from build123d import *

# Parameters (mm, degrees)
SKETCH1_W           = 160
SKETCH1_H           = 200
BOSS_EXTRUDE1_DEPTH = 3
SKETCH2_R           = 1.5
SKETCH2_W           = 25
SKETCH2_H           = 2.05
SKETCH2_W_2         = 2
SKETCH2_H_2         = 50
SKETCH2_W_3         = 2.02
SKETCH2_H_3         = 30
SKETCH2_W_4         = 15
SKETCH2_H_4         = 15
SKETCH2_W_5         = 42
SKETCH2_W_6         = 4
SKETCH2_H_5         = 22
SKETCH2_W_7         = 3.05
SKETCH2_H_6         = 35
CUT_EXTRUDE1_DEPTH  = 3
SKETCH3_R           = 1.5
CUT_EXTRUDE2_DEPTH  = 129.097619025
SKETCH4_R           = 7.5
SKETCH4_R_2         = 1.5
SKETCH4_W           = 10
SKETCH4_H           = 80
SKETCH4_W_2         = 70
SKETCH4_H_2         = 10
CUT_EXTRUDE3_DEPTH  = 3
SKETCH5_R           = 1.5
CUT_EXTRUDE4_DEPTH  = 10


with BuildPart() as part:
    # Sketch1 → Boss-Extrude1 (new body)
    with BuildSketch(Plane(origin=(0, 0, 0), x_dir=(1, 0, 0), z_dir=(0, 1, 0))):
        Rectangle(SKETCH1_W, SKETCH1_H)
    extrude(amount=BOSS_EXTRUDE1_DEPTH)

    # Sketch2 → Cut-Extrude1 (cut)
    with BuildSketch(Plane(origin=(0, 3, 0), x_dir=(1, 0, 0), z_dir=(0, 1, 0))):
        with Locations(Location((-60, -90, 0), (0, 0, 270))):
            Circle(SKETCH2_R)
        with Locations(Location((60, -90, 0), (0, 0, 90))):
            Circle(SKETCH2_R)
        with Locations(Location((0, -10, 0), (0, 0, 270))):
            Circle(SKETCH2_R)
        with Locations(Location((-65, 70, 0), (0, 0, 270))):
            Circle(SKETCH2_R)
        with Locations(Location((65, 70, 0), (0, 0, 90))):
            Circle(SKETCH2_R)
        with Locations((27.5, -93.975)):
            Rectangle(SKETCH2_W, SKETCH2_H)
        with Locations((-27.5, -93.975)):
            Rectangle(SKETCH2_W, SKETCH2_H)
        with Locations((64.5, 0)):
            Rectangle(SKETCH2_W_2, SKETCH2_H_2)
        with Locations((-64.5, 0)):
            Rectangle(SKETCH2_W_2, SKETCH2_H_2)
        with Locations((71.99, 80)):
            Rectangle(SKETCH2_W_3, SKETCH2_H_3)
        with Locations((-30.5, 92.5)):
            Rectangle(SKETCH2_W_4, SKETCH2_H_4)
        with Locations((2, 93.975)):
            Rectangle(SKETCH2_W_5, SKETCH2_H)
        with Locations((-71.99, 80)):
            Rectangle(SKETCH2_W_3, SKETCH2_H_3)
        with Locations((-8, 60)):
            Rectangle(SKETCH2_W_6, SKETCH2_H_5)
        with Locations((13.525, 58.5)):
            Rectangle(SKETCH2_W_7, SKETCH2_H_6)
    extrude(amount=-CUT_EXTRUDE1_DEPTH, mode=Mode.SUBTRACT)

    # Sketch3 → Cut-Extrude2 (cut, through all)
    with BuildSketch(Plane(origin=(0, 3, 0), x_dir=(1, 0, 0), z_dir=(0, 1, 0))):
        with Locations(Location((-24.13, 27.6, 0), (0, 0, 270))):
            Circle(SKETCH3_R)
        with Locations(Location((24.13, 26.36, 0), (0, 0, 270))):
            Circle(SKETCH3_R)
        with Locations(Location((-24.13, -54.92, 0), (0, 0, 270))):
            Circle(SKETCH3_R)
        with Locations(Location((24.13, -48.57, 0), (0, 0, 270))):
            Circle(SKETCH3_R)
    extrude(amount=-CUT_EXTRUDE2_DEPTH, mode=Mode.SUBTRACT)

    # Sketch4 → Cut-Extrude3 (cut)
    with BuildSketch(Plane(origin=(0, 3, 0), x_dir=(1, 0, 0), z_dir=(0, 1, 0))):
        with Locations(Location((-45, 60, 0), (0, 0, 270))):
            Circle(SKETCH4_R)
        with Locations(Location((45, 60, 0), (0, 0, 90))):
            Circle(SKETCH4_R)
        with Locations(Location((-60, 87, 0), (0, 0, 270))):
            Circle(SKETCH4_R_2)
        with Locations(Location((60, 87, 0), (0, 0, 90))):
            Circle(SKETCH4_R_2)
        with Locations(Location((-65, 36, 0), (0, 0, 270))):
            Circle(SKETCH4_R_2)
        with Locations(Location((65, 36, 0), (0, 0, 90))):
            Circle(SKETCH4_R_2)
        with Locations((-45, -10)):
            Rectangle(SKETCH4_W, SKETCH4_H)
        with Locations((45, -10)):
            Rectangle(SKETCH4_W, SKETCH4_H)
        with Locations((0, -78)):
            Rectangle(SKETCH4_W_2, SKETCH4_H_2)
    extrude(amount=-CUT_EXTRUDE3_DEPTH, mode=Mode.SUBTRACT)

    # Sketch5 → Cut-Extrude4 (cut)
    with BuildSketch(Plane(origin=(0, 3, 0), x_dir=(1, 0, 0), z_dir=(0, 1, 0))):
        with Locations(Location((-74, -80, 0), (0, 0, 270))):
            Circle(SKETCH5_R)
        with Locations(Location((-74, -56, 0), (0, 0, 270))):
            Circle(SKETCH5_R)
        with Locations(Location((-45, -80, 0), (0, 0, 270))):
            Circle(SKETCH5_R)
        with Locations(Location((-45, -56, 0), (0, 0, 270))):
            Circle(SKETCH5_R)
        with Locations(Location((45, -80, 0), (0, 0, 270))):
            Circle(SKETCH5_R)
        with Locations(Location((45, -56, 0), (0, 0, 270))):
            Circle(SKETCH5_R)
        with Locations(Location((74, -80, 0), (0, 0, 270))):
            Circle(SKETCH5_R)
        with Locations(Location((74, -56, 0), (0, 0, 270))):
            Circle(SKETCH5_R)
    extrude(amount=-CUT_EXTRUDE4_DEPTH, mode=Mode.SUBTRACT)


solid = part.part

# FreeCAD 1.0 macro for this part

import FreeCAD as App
import Part
import Sketcher
Q = App.Units.Quantity

doc = App.newDocument("Part")
body = doc.addObject("PartDesign::Body", "Body")

sketch1 = body.newObject("Sketcher::SketchObject", "Sketch")
sketch1.AttachmentSupport = (doc.getObject("XZ_Plane"), [""])
sketch1.MapMode = "FlatFace"
sketch1.addGeometry(Part.LineSegment(App.Vector(-80, -100, 0), App.Vector(-80, 100, 0)), False)
sketch1.addGeometry(Part.LineSegment(App.Vector(-80, 100, 0), App.Vector(80, 100, 0)), False)
sketch1.addGeometry(Part.LineSegment(App.Vector(80, 100, 0), App.Vector(80, -100, 0)), False)
sketch1.addGeometry(Part.LineSegment(App.Vector(80, -100, 0), App.Vector(-80, -100, 0)), False)
sketch1.addConstraint(Sketcher.Constraint("Coincident", 0, 2, 1, 1))
sketch1.addConstraint(Sketcher.Constraint("Coincident", 1, 2, 2, 1))
sketch1.addConstraint(Sketcher.Constraint("Coincident", 2, 2, 3, 1))
sketch1.addConstraint(Sketcher.Constraint("Coincident", 3, 2, 0, 1))
sketch1.addConstraint(Sketcher.Constraint("Vertical", 0))
sketch1.addConstraint(Sketcher.Constraint("Horizontal", 1))
sketch1.addConstraint(Sketcher.Constraint("Vertical", 2))
sketch1.addConstraint(Sketcher.Constraint("Horizontal", 3))
sketch1.addConstraint(Sketcher.Constraint("Symmetric", 0, 2, 2, 2, -1, 1))
sketch1.addConstraint(Sketcher.Constraint("DistanceX", 1, 1, 1, 2, Q("160 mm")))
sketch1.addConstraint(Sketcher.Constraint("DistanceY", 0, 1, 0, 2, Q("200 mm")))
pad1 = body.newObject("PartDesign::Pad", "Pad")
pad1.Profile = sketch1
pad1.Length = 3
pad1.Reversed = True

sketch2 = body.newObject("Sketcher::SketchObject", "Sketch001")
sketch2.AttachmentSupport = (doc.getObject("XZ_Plane"), [""])
sketch2.MapMode = "FlatFace"
sketch2.AttachmentOffset = App.Placement(App.Vector(0, 0, -3), App.Rotation())
sketch2.addGeometry(Part.Circle(App.Vector(-60, 90, 0), App.Vector(0, 0, 1), 1.5), False)
sketch2.addGeometry(Part.Circle(App.Vector(60, 90, 0), App.Vector(0, 0, 1), 1.5), False)
sketch2.addGeometry(Part.Circle(App.Vector(0, 10, 0), App.Vector(0, 0, 1), 1.5), False)
sketch2.addGeometry(Part.Circle(App.Vector(-65, -70, 0), App.Vector(0, 0, 1), 1.5), False)
sketch2.addGeometry(Part.Circle(App.Vector(65, -70, 0), App.Vector(0, 0, 1), 1.5), False)
sketch2.addGeometry(Part.LineSegment(App.Vector(15, 93, 0), App.Vector(15, 95, 0)), False)
sketch2.addGeometry(Part.LineSegment(App.Vector(15, 95, 0), App.Vector(40, 95, 0)), False)
sketch2.addGeometry(Part.LineSegment(App.Vector(40, 95, 0), App.Vector(40, 93, 0)), False)
sketch2.addGeometry(Part.LineSegment(App.Vector(40, 93, 0), App.Vector(15, 93, 0)), False)
sketch2.addGeometry(Part.LineSegment(App.Vector(-40, 93, 0), App.Vector(-40, 95, 0)), False)
sketch2.addGeometry(Part.LineSegment(App.Vector(-40, 95, 0), App.Vector(-15, 95, 0)), False)
sketch2.addGeometry(Part.LineSegment(App.Vector(-15, 95, 0), App.Vector(-15, 93, 0)), False)
sketch2.addGeometry(Part.LineSegment(App.Vector(-15, 93, 0), App.Vector(-40, 93, 0)), False)
sketch2.addGeometry(Part.LineSegment(App.Vector(63.5, -25, 0), App.Vector(63.5, 25, 0)), False)
sketch2.addGeometry(Part.LineSegment(App.Vector(63.5, 25, 0), App.Vector(65.5, 25, 0)), False)
sketch2.addGeometry(Part.LineSegment(App.Vector(65.5, 25, 0), App.Vector(65.5, -25, 0)), False)
sketch2.addGeometry(Part.LineSegment(App.Vector(65.5, -25, 0), App.Vector(63.5, -25, 0)), False)
sketch2.addGeometry(Part.LineSegment(App.Vector(-65.5, -25, 0), App.Vector(-65.5, 25, 0)), False)
sketch2.addGeometry(Part.LineSegment(App.Vector(-65.5, 25, 0), App.Vector(-63.5, 25, 0)), False)
sketch2.addGeometry(Part.LineSegment(App.Vector(-63.5, 25, 0), App.Vector(-63.5, -25, 0)), False)
sketch2.addGeometry(Part.LineSegment(App.Vector(-63.5, -25, 0), App.Vector(-65.5, -25, 0)), False)
sketch2.addGeometry(Part.LineSegment(App.Vector(71, -95, 0), App.Vector(71, -65, 0)), False)
sketch2.addGeometry(Part.LineSegment(App.Vector(71, -65, 0), App.Vector(73, -65, 0)), False)
sketch2.addGeometry(Part.LineSegment(App.Vector(73, -65, 0), App.Vector(73, -95, 0)), False)
sketch2.addGeometry(Part.LineSegment(App.Vector(73, -95, 0), App.Vector(71, -95, 0)), False)
sketch2.addGeometry(Part.LineSegment(App.Vector(-38, -100, 0), App.Vector(-38, -85, 0)), False)
sketch2.addGeometry(Part.LineSegment(App.Vector(-38, -85, 0), App.Vector(-23, -85, 0)), False)
sketch2.addGeometry(Part.LineSegment(App.Vector(-23, -85, 0), App.Vector(-23, -100, 0)), False)
sketch2.addGeometry(Part.LineSegment(App.Vector(-23, -100, 0), App.Vector(-38, -100, 0)), False)
sketch2.addGeometry(Part.LineSegment(App.Vector(-19, -95, 0), App.Vector(-19, -93, 0)), False)
sketch2.addGeometry(Part.LineSegment(App.Vector(-19, -93, 0), App.Vector(23, -93, 0)), False)
sketch2.addGeometry(Part.LineSegment(App.Vector(23, -93, 0), App.Vector(23, -95, 0)), False)
sketch2.addGeometry(Part.LineSegment(App.Vector(23, -95, 0), App.Vector(-19, -95, 0)), False)
sketch2.addGeometry(Part.LineSegment(App.Vector(-73, -95, 0), App.Vector(-73, -65, 0)), False)
sketch2.addGeometry(Part.LineSegment(App.Vector(-73, -65, 0), App.Vector(-71, -65, 0)), False)
sketch2.addGeometry(Part.LineSegment(App.Vector(-71, -65, 0), App.Vector(-71, -95, 0)), False)
sketch2.addGeometry(Part.LineSegment(App.Vector(-71, -95, 0), App.Vector(-73, -95, 0)), False)
sketch2.addGeometry(Part.LineSegment(App.Vector(-10, -71, 0), App.Vector(-10, -49, 0)), False)
sketch2.addGeometry(Part.LineSegment(App.Vector(-10, -49, 0), App.Vector(-6, -49, 0)), False)
sketch2.addGeometry(Part.LineSegment(App.Vector(-6, -49, 0), App.Vector(-6, -71, 0)), False)
sketch2.addGeometry(Part.LineSegment(App.Vector(-6, -71, 0), App.Vector(-10, -71, 0)), False)
sketch2.addGeometry(Part.LineSegment(App.Vector(12, -76, 0), App.Vector(12, -41, 0)), False)
sketch2.addGeometry(Part.LineSegment(App.Vector(12, -41, 0), App.Vector(15.1, -41, 0)), False)
sketch2.addGeometry(Part.LineSegment(App.Vector(15.1, -41, 0), App.Vector(15.1, -76, 0)), False)
sketch2.addGeometry(Part.LineSegment(App.Vector(15.1, -76, 0), App.Vector(12, -76, 0)), False)
sketch2.addConstraint(Sketcher.Constraint("Coincident", 5, 2, 6, 1))
sketch2.addConstraint(Sketcher.Constraint("Coincident", 6, 2, 7, 1))
sketch2.addConstraint(Sketcher.Constraint("Coincident", 7, 2, 8, 1))
sketch2.addConstraint(Sketcher.Constraint("Coincident", 8, 2, 5, 1))
sketch2.addConstraint(Sketcher.Constraint("Coincident", 9, 2, 10, 1))
sketch2.addConstraint(Sketcher.Constraint("Coincident", 10, 2, 11, 1))
sketch2.addConstraint(Sketcher.Constraint("Coincident", 11, 2, 12, 1))
sketch2.addConstraint(Sketcher.Constraint("Coincident", 12, 2, 9, 1))
sketch2.addConstraint(Sketcher.Constraint("Coincident", 13, 2, 14, 1))
sketch2.addConstraint(Sketcher.Constraint("Coincident", 14, 2, 15, 1))
sketch2.addConstraint(Sketcher.Constraint("Coincident", 15, 2, 16, 1))
sketch2.addConstraint(Sketcher.Constraint("Coincident", 16, 2, 13, 1))
sketch2.addConstraint(Sketcher.Constraint("Coincident", 17, 2, 18, 1))
sketch2.addConstraint(Sketcher.Constraint("Coincident", 18, 2, 19, 1))
sketch2.addConstraint(Sketcher.Constraint("Coincident", 19, 2, 20, 1))
sketch2.addConstraint(Sketcher.Constraint("Coincident", 20, 2, 17, 1))
sketch2.addConstraint(Sketcher.Constraint("Coincident", 21, 2, 22, 1))
sketch2.addConstraint(Sketcher.Constraint("Coincident", 22, 2, 23, 1))
sketch2.addConstraint(Sketcher.Constraint("Coincident", 23, 2, 24, 1))
sketch2.addConstraint(Sketcher.Constraint("Coincident", 24, 2, 21, 1))
sketch2.addConstraint(Sketcher.Constraint("Coincident", 25, 2, 26, 1))
sketch2.addConstraint(Sketcher.Constraint("Coincident", 26, 2, 27, 1))
sketch2.addConstraint(Sketcher.Constraint("Coincident", 27, 2, 28, 1))
sketch2.addConstraint(Sketcher.Constraint("Coincident", 28, 2, 25, 1))
sketch2.addConstraint(Sketcher.Constraint("Coincident", 29, 2, 30, 1))
sketch2.addConstraint(Sketcher.Constraint("Coincident", 30, 2, 31, 1))
sketch2.addConstraint(Sketcher.Constraint("Coincident", 31, 2, 32, 1))
sketch2.addConstraint(Sketcher.Constraint("Coincident", 32, 2, 29, 1))
sketch2.addConstraint(Sketcher.Constraint("Coincident", 33, 2, 34, 1))
sketch2.addConstraint(Sketcher.Constraint("Coincident", 34, 2, 35, 1))
sketch2.addConstraint(Sketcher.Constraint("Coincident", 35, 2, 36, 1))
sketch2.addConstraint(Sketcher.Constraint("Coincident", 36, 2, 33, 1))
sketch2.addConstraint(Sketcher.Constraint("Coincident", 37, 2, 38, 1))
sketch2.addConstraint(Sketcher.Constraint("Coincident", 38, 2, 39, 1))
sketch2.addConstraint(Sketcher.Constraint("Coincident", 39, 2, 40, 1))
sketch2.addConstraint(Sketcher.Constraint("Coincident", 40, 2, 37, 1))
sketch2.addConstraint(Sketcher.Constraint("Coincident", 41, 2, 42, 1))
sketch2.addConstraint(Sketcher.Constraint("Coincident", 42, 2, 43, 1))
sketch2.addConstraint(Sketcher.Constraint("Coincident", 43, 2, 44, 1))
sketch2.addConstraint(Sketcher.Constraint("Coincident", 44, 2, 41, 1))
sketch2.addConstraint(Sketcher.Constraint("Vertical", 5))
sketch2.addConstraint(Sketcher.Constraint("Horizontal", 6))
sketch2.addConstraint(Sketcher.Constraint("Vertical", 7))
sketch2.addConstraint(Sketcher.Constraint("Horizontal", 8))
sketch2.addConstraint(Sketcher.Constraint("Vertical", 9))
sketch2.addConstraint(Sketcher.Constraint("Horizontal", 10))
sketch2.addConstraint(Sketcher.Constraint("Vertical", 11))
sketch2.addConstraint(Sketcher.Constraint("Horizontal", 12))
sketch2.addConstraint(Sketcher.Constraint("Vertical", 13))
sketch2.addConstraint(Sketcher.Constraint("Horizontal", 14))
sketch2.addConstraint(Sketcher.Constraint("Vertical", 15))
sketch2.addConstraint(Sketcher.Constraint("Horizontal", 16))
sketch2.addConstraint(Sketcher.Constraint("Vertical", 17))
sketch2.addConstraint(Sketcher.Constraint("Horizontal", 18))
sketch2.addConstraint(Sketcher.Constraint("Vertical", 19))
sketch2.addConstraint(Sketcher.Constraint("Horizontal", 20))
sketch2.addConstraint(Sketcher.Constraint("Vertical", 21))
sketch2.addConstraint(Sketcher.Constraint("Horizontal", 22))
sketch2.addConstraint(Sketcher.Constraint("Vertical", 23))
sketch2.addConstraint(Sketcher.Constraint("Horizontal", 24))
sketch2.addConstraint(Sketcher.Constraint("Vertical", 25))
sketch2.addConstraint(Sketcher.Constraint("Horizontal", 26))
sketch2.addConstraint(Sketcher.Constraint("Vertical", 27))
sketch2.addConstraint(Sketcher.Constraint("Horizontal", 28))
sketch2.addConstraint(Sketcher.Constraint("Vertical", 29))
sketch2.addConstraint(Sketcher.Constraint("Horizontal", 30))
sketch2.addConstraint(Sketcher.Constraint("Vertical", 31))
sketch2.addConstraint(Sketcher.Constraint("Horizontal", 32))
sketch2.addConstraint(Sketcher.Constraint("Vertical", 33))
sketch2.addConstraint(Sketcher.Constraint("Horizontal", 34))
sketch2.addConstraint(Sketcher.Constraint("Vertical", 35))
sketch2.addConstraint(Sketcher.Constraint("Horizontal", 36))
sketch2.addConstraint(Sketcher.Constraint("Vertical", 37))
sketch2.addConstraint(Sketcher.Constraint("Horizontal", 38))
sketch2.addConstraint(Sketcher.Constraint("Vertical", 39))
sketch2.addConstraint(Sketcher.Constraint("Horizontal", 40))
sketch2.addConstraint(Sketcher.Constraint("Vertical", 41))
sketch2.addConstraint(Sketcher.Constraint("Horizontal", 42))
sketch2.addConstraint(Sketcher.Constraint("Vertical", 43))
sketch2.addConstraint(Sketcher.Constraint("Horizontal", 44))
sketch2.addConstraint(Sketcher.Constraint("Equal", 0, 1))
sketch2.addConstraint(Sketcher.Constraint("Equal", 1, 2))
sketch2.addConstraint(Sketcher.Constraint("Equal", 2, 3))
sketch2.addConstraint(Sketcher.Constraint("Equal", 3, 4))
sketch2.addConstraint(Sketcher.Constraint("Symmetric", 15, 2, 17, 2, -1, 1))
sketch2.addConstraint(Sketcher.Constraint("Symmetric", 13, 2, 19, 2, -1, 1))
sketch2.addConstraint(Sketcher.Constraint("Symmetric", 0, 3, 1, 3, -2))
sketch2.addConstraint(Sketcher.Constraint("Symmetric", 3, 3, 4, 3, -2))
sketch2.addConstraint(Sketcher.Constraint("Symmetric", 6, 2, 9, 2, -2))
sketch2.addConstraint(Sketcher.Constraint("Symmetric", 8, 2, 11, 2, -2))
sketch2.addConstraint(Sketcher.Constraint("Symmetric", 22, 2, 33, 2, -2))
sketch2.addConstraint(Sketcher.Constraint("Symmetric", 24, 2, 35, 2, -2))
sketch2.addConstraint(Sketcher.Constraint("PointOnObject", 2, 3, -2))
sketch2.addConstraint(Sketcher.Constraint("Horizontal", 14, 2, 17, 2))
sketch2.addConstraint(Sketcher.Constraint("Horizontal", 24, 2, 31, 2))
sketch2.addConstraint(Sketcher.Constraint("Equal", 28, 25))
sketch2.addConstraint(Sketcher.Constraint("Equal", 11, 29))
sketch2.addConstraint(Sketcher.Constraint("Diameter", 0, Q("3 mm")))
sketch2.addConstraint(Sketcher.Constraint("DistanceX", 6, 1, 6, 2, Q("25 mm")))
sketch2.addConstraint(Sketcher.Constraint("DistanceX", 14, 1, 14, 2, Q("2 mm")))
sketch2.addConstraint(Sketcher.Constraint("DistanceX", 26, 1, 26, 2, Q("15 mm")))
sketch2.addConstraint(Sketcher.Constraint("DistanceX", 30, 1, 30, 2, Q("42 mm")))
sketch2.addConstraint(Sketcher.Constraint("DistanceX", 38, 1, 38, 2, Q("4 mm")))
sketch2.addConstraint(Sketcher.Constraint("DistanceY", 13, 1, 13, 2, Q("50 mm")))
sketch2.addConstraint(Sketcher.Constraint("DistanceY", 21, 1, 21, 2, Q("30 mm")))
sketch2.addConstraint(Sketcher.Constraint("DistanceY", 37, 1, 37, 2, Q("22 mm")))
sketch2.addConstraint(Sketcher.Constraint("DistanceY", 41, 1, 41, 2, Q("35 mm")))
sketch2.addConstraint(Sketcher.Constraint("DistanceX", 0, 3, -1, 1, Q("60 mm")))
sketch2.addConstraint(Sketcher.Constraint("DistanceY", -1, 1, 0, 3, Q("90 mm")))
sketch2.addConstraint(Sketcher.Constraint("DistanceY", -1, 1, 2, 3, Q("10 mm")))
sketch2.addConstraint(Sketcher.Constraint("DistanceX", 3, 3, -1, 1, Q("65 mm")))
sketch2.addConstraint(Sketcher.Constraint("DistanceY", 3, 3, -1, 1, Q("70 mm")))
sketch2.addConstraint(Sketcher.Constraint("DistanceX", -1, 1, 5, 2, Q("15 mm")))
sketch2.addConstraint(Sketcher.Constraint("DistanceY", -1, 1, 5, 2, Q("95 mm")))
sketch2.addConstraint(Sketcher.Constraint("DistanceY", 21, 2, -1, 1, Q("65 mm")))
sketch2.addConstraint(Sketcher.Constraint("DistanceX", -1, 1, 22, 2, Q("73 mm")))
sketch2.addConstraint(Sketcher.Constraint("DistanceX", 25, 2, -1, 1, Q("38 mm")))
sketch2.addConstraint(Sketcher.Constraint("DistanceY", 25, 2, -1, 1, Q("85 mm")))
sketch2.addConstraint(Sketcher.Constraint("DistanceX", 29, 2, -1, 1, Q("19 mm")))
sketch2.addConstraint(Sketcher.Constraint("DistanceX", 37, 2, -1, 1, Q("10 mm")))
sketch2.addConstraint(Sketcher.Constraint("DistanceY", 37, 2, -1, 1, Q("49 mm")))
sketch2.addConstraint(Sketcher.Constraint("DistanceX", -1, 1, 41, 2, Q("12 mm")))
sketch2.addConstraint(Sketcher.Constraint("DistanceY", 41, 2, -1, 1, Q("41 mm")))
sketch2.addConstraint(Sketcher.Constraint("DistanceX", 22, 1, 22, 2, Q("2.02 mm")))
sketch2.addConstraint(Sketcher.Constraint("DistanceX", 42, 1, 42, 2, Q("3.05 mm")))
sketch2.addConstraint(Sketcher.Constraint("DistanceY", 5, 1, 5, 2, Q("2.05 mm")))
sketch2.addConstraint(Sketcher.Constraint("DistanceX", -1, 1, 13, 2, Q("63.5 mm")))
pocket1 = body.newObject("PartDesign::Pocket", "Pocket")
pocket1.Profile = sketch2
pocket1.Length = 3
pocket1.Reversed = True

sketch3 = body.newObject("Sketcher::SketchObject", "Sketch002")
sketch3.AttachmentSupport = (doc.getObject("XZ_Plane"), [""])
sketch3.MapMode = "FlatFace"
sketch3.AttachmentOffset = App.Placement(App.Vector(0, 0, -3), App.Rotation())
sketch3.addGeometry(Part.Circle(App.Vector(-24.1, -27.6, 0), App.Vector(0, 0, 1), 1.5), False)
sketch3.addGeometry(Part.Circle(App.Vector(24.1, -26.4, 0), App.Vector(0, 0, 1), 1.5), False)
sketch3.addGeometry(Part.Circle(App.Vector(-24.1, 54.9, 0), App.Vector(0, 0, 1), 1.5), False)
sketch3.addGeometry(Part.Circle(App.Vector(24.1, 48.6, 0), App.Vector(0, 0, 1), 1.5), False)
sketch3.addConstraint(Sketcher.Constraint("Equal", 0, 1))
sketch3.addConstraint(Sketcher.Constraint("Equal", 1, 2))
sketch3.addConstraint(Sketcher.Constraint("Equal", 2, 3))
sketch3.addConstraint(Sketcher.Constraint("Vertical", 0, 3, 2, 3))
sketch3.addConstraint(Sketcher.Constraint("Vertical", 1, 3, 3, 3))
sketch3.addConstraint(Sketcher.Constraint("Diameter", 0, Q("3 mm")))
sketch3.addConstraint(Sketcher.Constraint("DistanceY", 0, 3, -1, 1, Q("27.6 mm")))
sketch3.addConstraint(Sketcher.Constraint("DistanceX", 0, 3, -1, 1, Q("24.13 mm")))
sketch3.addConstraint(Sketcher.Constraint("DistanceX", -1, 1, 1, 3, Q("24.13 mm")))
sketch3.addConstraint(Sketcher.Constraint("DistanceY", 1, 3, -1, 1, Q("26.36 mm")))
sketch3.addConstraint(Sketcher.Constraint("DistanceY", -1, 1, 2, 3, Q("54.92 mm")))
sketch3.addConstraint(Sketcher.Constraint("DistanceY", -1, 1, 3, 3, Q("48.57 mm")))
pocket2 = body.newObject("PartDesign::Pocket", "Pocket001")
pocket2.Profile = sketch3
pocket2.Type = "ThroughAll"
pocket2.Reversed = True

sketch4 = body.newObject("Sketcher::SketchObject", "Sketch003")
sketch4.AttachmentSupport = (doc.getObject("XZ_Plane"), [""])
sketch4.MapMode = "FlatFace"
sketch4.AttachmentOffset = App.Placement(App.Vector(0, 0, -3), App.Rotation())
sketch4.addGeometry(Part.Circle(App.Vector(-45, -60, 0), App.Vector(0, 0, 1), 7.5), False)
sketch4.addGeometry(Part.Circle(App.Vector(45, -60, 0), App.Vector(0, 0, 1), 7.5), False)
sketch4.addGeometry(Part.Circle(App.Vector(-60, -87, 0), App.Vector(0, 0, 1), 1.5), False)
sketch4.addGeometry(Part.Circle(App.Vector(60, -87, 0), App.Vector(0, 0, 1), 1.5), False)
sketch4.addGeometry(Part.Circle(App.Vector(-65, -36, 0), App.Vector(0, 0, 1), 1.5), False)
sketch4.addGeometry(Part.Circle(App.Vector(65, -36, 0), App.Vector(0, 0, 1), 1.5), False)
sketch4.addGeometry(Part.LineSegment(App.Vector(-50, -30, 0), App.Vector(-50, 50, 0)), False)
sketch4.addGeometry(Part.LineSegment(App.Vector(-50, 50, 0), App.Vector(-40, 50, 0)), False)
sketch4.addGeometry(Part.LineSegment(App.Vector(-40, 50, 0), App.Vector(-40, -30, 0)), False)
sketch4.addGeometry(Part.LineSegment(App.Vector(-40, -30, 0), App.Vector(-50, -30, 0)), False)
sketch4.addGeometry(Part.LineSegment(App.Vector(40, -30, 0), App.Vector(40, 50, 0)), False)
sketch4.addGeometry(Part.LineSegment(App.Vector(40, 50, 0), App.Vector(50, 50, 0)), False)
sketch4.addGeometry(Part.LineSegment(App.Vector(50, 50, 0), App.Vector(50, -30, 0)), False)
sketch4.addGeometry(Part.LineSegment(App.Vector(50, -30, 0), App.Vector(40, -30, 0)), False)
sketch4.addGeometry(Part.LineSegment(App.Vector(-35, 73, 0), App.Vector(-35, 83, 0)), False)
sketch4.addGeometry(Part.LineSegment(App.Vector(-35, 83, 0), App.Vector(35, 83, 0)), False)
sketch4.addGeometry(Part.LineSegment(App.Vector(35, 83, 0), App.Vector(35, 73, 0)), False)
sketch4.addGeometry(Part.LineSegment(App.Vector(35, 73, 0), App.Vector(-35, 73, 0)), False)
sketch4.addConstraint(Sketcher.Constraint("Coincident", 6, 2, 7, 1))
sketch4.addConstraint(Sketcher.Constraint("Coincident", 7, 2, 8, 1))
sketch4.addConstraint(Sketcher.Constraint("Coincident", 8, 2, 9, 1))
sketch4.addConstraint(Sketcher.Constraint("Coincident", 9, 2, 6, 1))
sketch4.addConstraint(Sketcher.Constraint("Coincident", 10, 2, 11, 1))
sketch4.addConstraint(Sketcher.Constraint("Coincident", 11, 2, 12, 1))
sketch4.addConstraint(Sketcher.Constraint("Coincident", 12, 2, 13, 1))
sketch4.addConstraint(Sketcher.Constraint("Coincident", 13, 2, 10, 1))
sketch4.addConstraint(Sketcher.Constraint("Coincident", 14, 2, 15, 1))
sketch4.addConstraint(Sketcher.Constraint("Coincident", 15, 2, 16, 1))
sketch4.addConstraint(Sketcher.Constraint("Coincident", 16, 2, 17, 1))
sketch4.addConstraint(Sketcher.Constraint("Coincident", 17, 2, 14, 1))
sketch4.addConstraint(Sketcher.Constraint("Vertical", 6))
sketch4.addConstraint(Sketcher.Constraint("Horizontal", 7))
sketch4.addConstraint(Sketcher.Constraint("Vertical", 8))
sketch4.addConstraint(Sketcher.Constraint("Horizontal", 9))
sketch4.addConstraint(Sketcher.Constraint("Vertical", 10))
sketch4.addConstraint(Sketcher.Constraint("Horizontal", 11))
sketch4.addConstraint(Sketcher.Constraint("Vertical", 12))
sketch4.addConstraint(Sketcher.Constraint("Horizontal", 13))
sketch4.addConstraint(Sketcher.Constraint("Vertical", 14))
sketch4.addConstraint(Sketcher.Constraint("Horizontal", 15))
sketch4.addConstraint(Sketcher.Constraint("Vertical", 16))
sketch4.addConstraint(Sketcher.Constraint("Horizontal", 17))
sketch4.addConstraint(Sketcher.Constraint("Equal", 0, 1))
sketch4.addConstraint(Sketcher.Constraint("Equal", 2, 3))
sketch4.addConstraint(Sketcher.Constraint("Equal", 3, 4))
sketch4.addConstraint(Sketcher.Constraint("Equal", 4, 5))
sketch4.addConstraint(Sketcher.Constraint("Symmetric", 0, 3, 1, 3, -2))
sketch4.addConstraint(Sketcher.Constraint("Symmetric", 2, 3, 3, 3, -2))
sketch4.addConstraint(Sketcher.Constraint("Symmetric", 4, 3, 5, 3, -2))
sketch4.addConstraint(Sketcher.Constraint("Symmetric", 7, 2, 10, 2, -2))
sketch4.addConstraint(Sketcher.Constraint("Symmetric", 9, 2, 12, 2, -2))
sketch4.addConstraint(Sketcher.Constraint("Equal", 13, 14))
sketch4.addConstraint(Sketcher.Constraint("Diameter", 0, Q("15 mm")))
sketch4.addConstraint(Sketcher.Constraint("Diameter", 2, Q("3 mm")))
sketch4.addConstraint(Sketcher.Constraint("DistanceX", 7, 1, 7, 2, Q("10 mm")))
sketch4.addConstraint(Sketcher.Constraint("DistanceX", 15, 1, 15, 2, Q("70 mm")))
sketch4.addConstraint(Sketcher.Constraint("DistanceY", 6, 1, 6, 2, Q("80 mm")))
sketch4.addConstraint(Sketcher.Constraint("DistanceX", 0, 3, -1, 1, Q("45 mm")))
sketch4.addConstraint(Sketcher.Constraint("DistanceY", 0, 3, -1, 1, Q("60 mm")))
sketch4.addConstraint(Sketcher.Constraint("DistanceX", 2, 3, -1, 1, Q("60 mm")))
sketch4.addConstraint(Sketcher.Constraint("DistanceY", 2, 3, -1, 1, Q("87 mm")))
sketch4.addConstraint(Sketcher.Constraint("DistanceX", 4, 3, -1, 1, Q("65 mm")))
sketch4.addConstraint(Sketcher.Constraint("DistanceY", 4, 3, -1, 1, Q("36 mm")))
sketch4.addConstraint(Sketcher.Constraint("DistanceX", 6, 2, -1, 1, Q("50 mm")))
sketch4.addConstraint(Sketcher.Constraint("DistanceY", -1, 1, 6, 2, Q("50 mm")))
sketch4.addConstraint(Sketcher.Constraint("DistanceX", 14, 2, -1, 1, Q("35 mm")))
sketch4.addConstraint(Sketcher.Constraint("DistanceY", -1, 1, 14, 2, Q("83 mm")))
pocket3 = body.newObject("PartDesign::Pocket", "Pocket002")
pocket3.Profile = sketch4
pocket3.Length = 3
pocket3.Reversed = True

sketch5 = body.newObject("Sketcher::SketchObject", "Sketch004")
sketch5.AttachmentSupport = (doc.getObject("XZ_Plane"), [""])
sketch5.MapMode = "FlatFace"
sketch5.AttachmentOffset = App.Placement(App.Vector(0, 0, -3), App.Rotation())
sketch5.addGeometry(Part.Circle(App.Vector(-74, 80, 0), App.Vector(0, 0, 1), 1.5), False)
sketch5.addGeometry(Part.Circle(App.Vector(-74, 56, 0), App.Vector(0, 0, 1), 1.5), False)
sketch5.addGeometry(Part.Circle(App.Vector(-45, 80, 0), App.Vector(0, 0, 1), 1.5), False)
sketch5.addGeometry(Part.Circle(App.Vector(-45, 56, 0), App.Vector(0, 0, 1), 1.5), False)
sketch5.addGeometry(Part.Circle(App.Vector(45, 80, 0), App.Vector(0, 0, 1), 1.5), False)
sketch5.addGeometry(Part.Circle(App.Vector(45, 56, 0), App.Vector(0, 0, 1), 1.5), False)
sketch5.addGeometry(Part.Circle(App.Vector(74, 80, 0), App.Vector(0, 0, 1), 1.5), False)
sketch5.addGeometry(Part.Circle(App.Vector(74, 56, 0), App.Vector(0, 0, 1), 1.5), False)
sketch5.addConstraint(Sketcher.Constraint("Equal", 0, 1))
sketch5.addConstraint(Sketcher.Constraint("Equal", 1, 2))
sketch5.addConstraint(Sketcher.Constraint("Equal", 2, 3))
sketch5.addConstraint(Sketcher.Constraint("Equal", 3, 4))
sketch5.addConstraint(Sketcher.Constraint("Equal", 4, 5))
sketch5.addConstraint(Sketcher.Constraint("Equal", 5, 6))
sketch5.addConstraint(Sketcher.Constraint("Equal", 6, 7))
sketch5.addConstraint(Sketcher.Constraint("Symmetric", 2, 3, 4, 3, -2))
sketch5.addConstraint(Sketcher.Constraint("Symmetric", 3, 3, 5, 3, -2))
sketch5.addConstraint(Sketcher.Constraint("Symmetric", 0, 3, 6, 3, -2))
sketch5.addConstraint(Sketcher.Constraint("Symmetric", 1, 3, 7, 3, -2))
sketch5.addConstraint(Sketcher.Constraint("Horizontal", 0, 3, 2, 3))
sketch5.addConstraint(Sketcher.Constraint("Horizontal", 1, 3, 3, 3))
sketch5.addConstraint(Sketcher.Constraint("Vertical", 0, 3, 1, 3))
sketch5.addConstraint(Sketcher.Constraint("Vertical", 2, 3, 3, 3))
sketch5.addConstraint(Sketcher.Constraint("Diameter", 0, Q("3 mm")))
sketch5.addConstraint(Sketcher.Constraint("DistanceX", 0, 3, -1, 1, Q("74 mm")))
sketch5.addConstraint(Sketcher.Constraint("DistanceY", -1, 1, 0, 3, Q("80 mm")))
sketch5.addConstraint(Sketcher.Constraint("DistanceY", -1, 1, 1, 3, Q("56 mm")))
sketch5.addConstraint(Sketcher.Constraint("DistanceX", 2, 3, -1, 1, Q("45 mm")))
pocket4 = body.newObject("PartDesign::Pocket", "Pocket003")
pocket4.Profile = sketch5
pocket4.Length = 10
pocket4.Reversed = True

doc.recompute()
